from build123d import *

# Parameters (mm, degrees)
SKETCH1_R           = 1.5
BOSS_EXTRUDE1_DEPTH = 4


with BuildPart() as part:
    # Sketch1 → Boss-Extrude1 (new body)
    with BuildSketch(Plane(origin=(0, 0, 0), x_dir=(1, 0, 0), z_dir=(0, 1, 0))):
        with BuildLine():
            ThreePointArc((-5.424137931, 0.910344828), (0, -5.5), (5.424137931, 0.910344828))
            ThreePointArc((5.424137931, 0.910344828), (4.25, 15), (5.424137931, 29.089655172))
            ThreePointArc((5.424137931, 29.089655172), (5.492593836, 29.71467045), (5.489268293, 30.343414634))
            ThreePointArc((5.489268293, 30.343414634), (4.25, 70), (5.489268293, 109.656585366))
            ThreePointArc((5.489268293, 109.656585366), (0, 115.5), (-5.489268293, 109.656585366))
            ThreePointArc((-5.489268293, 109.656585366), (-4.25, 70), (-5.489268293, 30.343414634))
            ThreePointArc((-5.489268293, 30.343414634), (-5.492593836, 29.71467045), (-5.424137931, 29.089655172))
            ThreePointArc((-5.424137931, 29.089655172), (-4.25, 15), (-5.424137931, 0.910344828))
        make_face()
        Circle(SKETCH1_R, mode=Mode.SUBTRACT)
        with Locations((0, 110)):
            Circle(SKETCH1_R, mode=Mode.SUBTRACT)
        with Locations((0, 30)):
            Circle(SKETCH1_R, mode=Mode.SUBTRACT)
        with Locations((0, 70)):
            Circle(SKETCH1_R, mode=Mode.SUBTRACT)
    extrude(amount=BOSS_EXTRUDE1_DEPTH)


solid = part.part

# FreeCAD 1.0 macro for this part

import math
import FreeCAD as App
import Part
import Sketcher
from FreeCAD import Vector
Q = App.Units.Quantity

doc = App.newDocument("Part")
body = doc.addObject("PartDesign::Body", "Body")

# Sketch on XZ plane
sketch1 = doc.addObject("Sketcher::SketchObject", "Sketch")
body.addObject(sketch1)
sketch1.AttachmentSupport = (doc.XZ_Plane, [""])
sketch1.MapMode = "FlatFace"
sketch1.addGeometry(Part.ArcOfCircle(Part.Circle(Vector(0, 0, 0), Vector(0, 0, 1), 5.5), math.radians(-9.527283), math.radians(189.527283)), False)
sketch1.addGeometry(Part.ArcOfCircle(Part.Circle(Vector(89.375, -15, 0), Vector(0, 0, 1), 85.125), math.radians(170.472717), math.radians(189.527283)), False)
sketch1.addGeometry(Part.ArcOfCircle(Part.Circle(Vector(0, -30, 0), Vector(0, 0, 1), 5.5), math.radians(-3.579821), math.radians(9.527283)), False)
sketch1.addGeometry(Part.ArcOfCircle(Part.Circle(Vector(639.375, -70, 0), Vector(0, 0, 1), 635.125), math.radians(176.420179), math.radians(183.579821)), False)
sketch1.addGeometry(Part.ArcOfCircle(Part.Circle(Vector(0, -110, 0), Vector(0, 0, 1), 5.5), math.radians(176.420179), math.radians(363.579821)), False)
sketch1.addGeometry(Part.ArcOfCircle(Part.Circle(Vector(-639.375, -70, 0), Vector(0, 0, 1), 635.125), math.radians(-3.579821), math.radians(3.579821)), False)
sketch1.addGeometry(Part.ArcOfCircle(Part.Circle(Vector(0, -30, 0), Vector(0, 0, 1), 5.5), math.radians(170.472717), math.radians(183.579821)), False)
sketch1.addGeometry(Part.ArcOfCircle(Part.Circle(Vector(-89.375, -15, 0), Vector(0, 0, 1), 85.125), math.radians(-9.527283), math.radians(9.527283)), False)
sketch1.addGeometry(Part.Circle(Vector(0, 0, 0), Vector(0, 0, 1), 1.5), False)
sketch1.addGeometry(Part.Circle(Vector(0, -30, 0), Vector(0, 0, 1), 1.5), False)
sketch1.addGeometry(Part.Circle(Vector(0, -70, 0), Vector(0, 0, 1), 1.5), False)
sketch1.addGeometry(Part.Circle(Vector(0, -110, 0), Vector(0, 0, 1), 1.5), False)
sketch1.addConstraint(Sketcher.Constraint("Tangent", 0, 1, 1, 1))
sketch1.addConstraint(Sketcher.Constraint("Tangent", 1, 2, 2, 2))
sketch1.addConstraint(Sketcher.Constraint("Tangent", 2, 1, 3, 1))
sketch1.addConstraint(Sketcher.Constraint("Tangent", 3, 2, 4, 2))
sketch1.addConstraint(Sketcher.Constraint("Tangent", 4, 1, 5, 1))
sketch1.addConstraint(Sketcher.Constraint("Tangent", 5, 2, 6, 2))
sketch1.addConstraint(Sketcher.Constraint("Tangent", 6, 1, 7, 1))
sketch1.addConstraint(Sketcher.Constraint("Tangent", 7, 2, 0, 2))
sketch1.addConstraint(Sketcher.Constraint("Coincident", 0, 3, -1, 1))
sketch1.addConstraint(Sketcher.Constraint("Coincident", 8, 3, -1, 1))
sketch1.addConstraint(Sketcher.Constraint("Coincident", 6, 3, 2, 3))
sketch1.addConstraint(Sketcher.Constraint("Coincident", 9, 3, 2, 3))
sketch1.addConstraint(Sketcher.Constraint("Coincident", 11, 3, 4, 3))
sketch1.addConstraint(Sketcher.Constraint("Equal", 0, 2))
sketch1.addConstraint(Sketcher.Constraint("Equal", 2, 4))
sketch1.addConstraint(Sketcher.Constraint("Equal", 3, 5))
sketch1.addConstraint(Sketcher.Constraint("Equal", 4, 6))
sketch1.addConstraint(Sketcher.Constraint("Equal", 1, 7))
sketch1.addConstraint(Sketcher.Constraint("Equal", 8, 9))
sketch1.addConstraint(Sketcher.Constraint("Equal", 9, 10))
sketch1.addConstraint(Sketcher.Constraint("Equal", 10, 11))
sketch1.addConstraint(Sketcher.Constraint("Symmetric", 3, 3, 5, 3, -2))
sketch1.addConstraint(Sketcher.Constraint("PointOnObject", 10, 3, -2))
sketch1.addConstraint(Sketcher.Constraint("Horizontal", 5, 3, 10, 3))
sketch1.addConstraint(Sketcher.Constraint("Diameter", 8, Q("3 mm")))
sketch1.addConstraint(Sketcher.Constraint("Radius", 0, Q("5.5 mm")))
sketch1.addConstraint(Sketcher.Constraint("DistanceY", 1, 3, -1, 1, Q("15 mm")))
sketch1.addConstraint(Sketcher.Constraint("DistanceY", 3, 3, -1, 1, Q("70 mm")))
sketch1.addConstraint(Sketcher.Constraint("Radius", 1, Q("85.125 mm")))
sketch1.addConstraint(Sketcher.Constraint("Radius", 3, Q("635.125 mm")))
pad1 = doc.addObject("PartDesign::Pad", "Pad")
body.addObject(pad1)
pad1.Profile = sketch1
pad1.Length = 4
pad1.Reversed = True

doc.recompute()
